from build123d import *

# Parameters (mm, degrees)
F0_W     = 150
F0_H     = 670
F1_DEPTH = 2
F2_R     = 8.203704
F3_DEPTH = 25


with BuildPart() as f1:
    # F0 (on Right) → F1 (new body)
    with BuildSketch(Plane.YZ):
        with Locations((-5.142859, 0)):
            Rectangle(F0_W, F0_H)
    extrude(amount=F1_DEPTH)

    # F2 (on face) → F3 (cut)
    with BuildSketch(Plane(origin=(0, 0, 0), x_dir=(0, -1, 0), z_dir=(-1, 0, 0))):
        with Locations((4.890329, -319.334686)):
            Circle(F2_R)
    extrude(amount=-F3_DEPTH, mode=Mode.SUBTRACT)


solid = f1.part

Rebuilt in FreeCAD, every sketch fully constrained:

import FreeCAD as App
import Part
import Sketcher
from FreeCAD import Vector

doc = App.newDocument("Part")
body = doc.addObject("PartDesign::Body", "Body")

# Sketch on YZ plane
sketch1 = body.newObject("Sketcher::SketchObject", "Sketch")
sketch1.AttachmentSupport = (doc.getObject("YZ_Plane"), [""])
sketch1.MapMode = "FlatFace"
sketch1.addGeometry(Part.LineSegment(Vector(-80, 335, 0), Vector(-80, -335, 0)), False)
sketch1.addGeometry(Part.LineSegment(Vector(-80, -335, 0), Vector(70, -335, 0)), False)
sketch1.addGeometry(Part.LineSegment(Vector(70, -335, 0), Vector(70, 335, 0)), False)
sketch1.addGeometry(Part.LineSegment(Vector(70, 335, 0), Vector(-80, 335, 0)), False)
sketch1.addConstraint(Sketcher.Constraint("Coincident", 0, 2, 1, 1))
sketch1.addConstraint(Sketcher.Constraint("Coincident", 1, 2, 2, 1))
sketch1.addConstraint(Sketcher.Constraint("Coincident", 2, 2, 3, 1))
sketch1.addConstraint(Sketcher.Constraint("Coincident", 3, 2, 0, 1))
sketch1.addConstraint(Sketcher.Constraint("Vertical", 0))
sketch1.addConstraint(Sketcher.Constraint("Horizontal", 1))
sketch1.addConstraint(Sketcher.Constraint("Vertical", 2))
sketch1.addConstraint(Sketcher.Constraint("Horizontal", 3))
sketch1.addConstraint(Sketcher.Constraint("DistanceX", 1, 1, 1, 2, 150.0))
sketch1.addConstraint(Sketcher.Constraint("DistanceY", 0, 2, 0, 1, 670.0))
sketch1.addConstraint(Sketcher.Constraint("DistanceY", 0, 2, -1, 1, 335.0))
sketch1.addConstraint(Sketcher.Constraint("DistanceX", 0, 2, -1, 1, 80.142859))
pad1 = body.newObject("PartDesign::Pad", "Pad")
pad1.Profile = sketch1
pad1.Length = 2

# Sketch on YZ plane
sketch2 = body.newObject("Sketcher::SketchObject", "Sketch001")
sketch2.AttachmentSupport = (doc.getObject("YZ_Plane"), [""])
sketch2.MapMode = "FlatFace"
sketch2.addGeometry(Part.Circle(Vector(-5, -319, 0), Vector(0, 0, 1), 8), False)
sketch2.addConstraint(Sketcher.Constraint("Diameter", 0, 16.407408))
sketch2.addConstraint(Sketcher.Constraint("DistanceX", 0, 3, -1, 1, 4.890329))
sketch2.addConstraint(Sketcher.Constraint("DistanceY", 0, 3, -1, 1, 319.334686))
pocket1 = body.newObject("PartDesign::Pocket", "Pocket")
pocket1.Profile = sketch2
pocket1.Length = 25
pocket1.Reversed = True

doc.recompute()
